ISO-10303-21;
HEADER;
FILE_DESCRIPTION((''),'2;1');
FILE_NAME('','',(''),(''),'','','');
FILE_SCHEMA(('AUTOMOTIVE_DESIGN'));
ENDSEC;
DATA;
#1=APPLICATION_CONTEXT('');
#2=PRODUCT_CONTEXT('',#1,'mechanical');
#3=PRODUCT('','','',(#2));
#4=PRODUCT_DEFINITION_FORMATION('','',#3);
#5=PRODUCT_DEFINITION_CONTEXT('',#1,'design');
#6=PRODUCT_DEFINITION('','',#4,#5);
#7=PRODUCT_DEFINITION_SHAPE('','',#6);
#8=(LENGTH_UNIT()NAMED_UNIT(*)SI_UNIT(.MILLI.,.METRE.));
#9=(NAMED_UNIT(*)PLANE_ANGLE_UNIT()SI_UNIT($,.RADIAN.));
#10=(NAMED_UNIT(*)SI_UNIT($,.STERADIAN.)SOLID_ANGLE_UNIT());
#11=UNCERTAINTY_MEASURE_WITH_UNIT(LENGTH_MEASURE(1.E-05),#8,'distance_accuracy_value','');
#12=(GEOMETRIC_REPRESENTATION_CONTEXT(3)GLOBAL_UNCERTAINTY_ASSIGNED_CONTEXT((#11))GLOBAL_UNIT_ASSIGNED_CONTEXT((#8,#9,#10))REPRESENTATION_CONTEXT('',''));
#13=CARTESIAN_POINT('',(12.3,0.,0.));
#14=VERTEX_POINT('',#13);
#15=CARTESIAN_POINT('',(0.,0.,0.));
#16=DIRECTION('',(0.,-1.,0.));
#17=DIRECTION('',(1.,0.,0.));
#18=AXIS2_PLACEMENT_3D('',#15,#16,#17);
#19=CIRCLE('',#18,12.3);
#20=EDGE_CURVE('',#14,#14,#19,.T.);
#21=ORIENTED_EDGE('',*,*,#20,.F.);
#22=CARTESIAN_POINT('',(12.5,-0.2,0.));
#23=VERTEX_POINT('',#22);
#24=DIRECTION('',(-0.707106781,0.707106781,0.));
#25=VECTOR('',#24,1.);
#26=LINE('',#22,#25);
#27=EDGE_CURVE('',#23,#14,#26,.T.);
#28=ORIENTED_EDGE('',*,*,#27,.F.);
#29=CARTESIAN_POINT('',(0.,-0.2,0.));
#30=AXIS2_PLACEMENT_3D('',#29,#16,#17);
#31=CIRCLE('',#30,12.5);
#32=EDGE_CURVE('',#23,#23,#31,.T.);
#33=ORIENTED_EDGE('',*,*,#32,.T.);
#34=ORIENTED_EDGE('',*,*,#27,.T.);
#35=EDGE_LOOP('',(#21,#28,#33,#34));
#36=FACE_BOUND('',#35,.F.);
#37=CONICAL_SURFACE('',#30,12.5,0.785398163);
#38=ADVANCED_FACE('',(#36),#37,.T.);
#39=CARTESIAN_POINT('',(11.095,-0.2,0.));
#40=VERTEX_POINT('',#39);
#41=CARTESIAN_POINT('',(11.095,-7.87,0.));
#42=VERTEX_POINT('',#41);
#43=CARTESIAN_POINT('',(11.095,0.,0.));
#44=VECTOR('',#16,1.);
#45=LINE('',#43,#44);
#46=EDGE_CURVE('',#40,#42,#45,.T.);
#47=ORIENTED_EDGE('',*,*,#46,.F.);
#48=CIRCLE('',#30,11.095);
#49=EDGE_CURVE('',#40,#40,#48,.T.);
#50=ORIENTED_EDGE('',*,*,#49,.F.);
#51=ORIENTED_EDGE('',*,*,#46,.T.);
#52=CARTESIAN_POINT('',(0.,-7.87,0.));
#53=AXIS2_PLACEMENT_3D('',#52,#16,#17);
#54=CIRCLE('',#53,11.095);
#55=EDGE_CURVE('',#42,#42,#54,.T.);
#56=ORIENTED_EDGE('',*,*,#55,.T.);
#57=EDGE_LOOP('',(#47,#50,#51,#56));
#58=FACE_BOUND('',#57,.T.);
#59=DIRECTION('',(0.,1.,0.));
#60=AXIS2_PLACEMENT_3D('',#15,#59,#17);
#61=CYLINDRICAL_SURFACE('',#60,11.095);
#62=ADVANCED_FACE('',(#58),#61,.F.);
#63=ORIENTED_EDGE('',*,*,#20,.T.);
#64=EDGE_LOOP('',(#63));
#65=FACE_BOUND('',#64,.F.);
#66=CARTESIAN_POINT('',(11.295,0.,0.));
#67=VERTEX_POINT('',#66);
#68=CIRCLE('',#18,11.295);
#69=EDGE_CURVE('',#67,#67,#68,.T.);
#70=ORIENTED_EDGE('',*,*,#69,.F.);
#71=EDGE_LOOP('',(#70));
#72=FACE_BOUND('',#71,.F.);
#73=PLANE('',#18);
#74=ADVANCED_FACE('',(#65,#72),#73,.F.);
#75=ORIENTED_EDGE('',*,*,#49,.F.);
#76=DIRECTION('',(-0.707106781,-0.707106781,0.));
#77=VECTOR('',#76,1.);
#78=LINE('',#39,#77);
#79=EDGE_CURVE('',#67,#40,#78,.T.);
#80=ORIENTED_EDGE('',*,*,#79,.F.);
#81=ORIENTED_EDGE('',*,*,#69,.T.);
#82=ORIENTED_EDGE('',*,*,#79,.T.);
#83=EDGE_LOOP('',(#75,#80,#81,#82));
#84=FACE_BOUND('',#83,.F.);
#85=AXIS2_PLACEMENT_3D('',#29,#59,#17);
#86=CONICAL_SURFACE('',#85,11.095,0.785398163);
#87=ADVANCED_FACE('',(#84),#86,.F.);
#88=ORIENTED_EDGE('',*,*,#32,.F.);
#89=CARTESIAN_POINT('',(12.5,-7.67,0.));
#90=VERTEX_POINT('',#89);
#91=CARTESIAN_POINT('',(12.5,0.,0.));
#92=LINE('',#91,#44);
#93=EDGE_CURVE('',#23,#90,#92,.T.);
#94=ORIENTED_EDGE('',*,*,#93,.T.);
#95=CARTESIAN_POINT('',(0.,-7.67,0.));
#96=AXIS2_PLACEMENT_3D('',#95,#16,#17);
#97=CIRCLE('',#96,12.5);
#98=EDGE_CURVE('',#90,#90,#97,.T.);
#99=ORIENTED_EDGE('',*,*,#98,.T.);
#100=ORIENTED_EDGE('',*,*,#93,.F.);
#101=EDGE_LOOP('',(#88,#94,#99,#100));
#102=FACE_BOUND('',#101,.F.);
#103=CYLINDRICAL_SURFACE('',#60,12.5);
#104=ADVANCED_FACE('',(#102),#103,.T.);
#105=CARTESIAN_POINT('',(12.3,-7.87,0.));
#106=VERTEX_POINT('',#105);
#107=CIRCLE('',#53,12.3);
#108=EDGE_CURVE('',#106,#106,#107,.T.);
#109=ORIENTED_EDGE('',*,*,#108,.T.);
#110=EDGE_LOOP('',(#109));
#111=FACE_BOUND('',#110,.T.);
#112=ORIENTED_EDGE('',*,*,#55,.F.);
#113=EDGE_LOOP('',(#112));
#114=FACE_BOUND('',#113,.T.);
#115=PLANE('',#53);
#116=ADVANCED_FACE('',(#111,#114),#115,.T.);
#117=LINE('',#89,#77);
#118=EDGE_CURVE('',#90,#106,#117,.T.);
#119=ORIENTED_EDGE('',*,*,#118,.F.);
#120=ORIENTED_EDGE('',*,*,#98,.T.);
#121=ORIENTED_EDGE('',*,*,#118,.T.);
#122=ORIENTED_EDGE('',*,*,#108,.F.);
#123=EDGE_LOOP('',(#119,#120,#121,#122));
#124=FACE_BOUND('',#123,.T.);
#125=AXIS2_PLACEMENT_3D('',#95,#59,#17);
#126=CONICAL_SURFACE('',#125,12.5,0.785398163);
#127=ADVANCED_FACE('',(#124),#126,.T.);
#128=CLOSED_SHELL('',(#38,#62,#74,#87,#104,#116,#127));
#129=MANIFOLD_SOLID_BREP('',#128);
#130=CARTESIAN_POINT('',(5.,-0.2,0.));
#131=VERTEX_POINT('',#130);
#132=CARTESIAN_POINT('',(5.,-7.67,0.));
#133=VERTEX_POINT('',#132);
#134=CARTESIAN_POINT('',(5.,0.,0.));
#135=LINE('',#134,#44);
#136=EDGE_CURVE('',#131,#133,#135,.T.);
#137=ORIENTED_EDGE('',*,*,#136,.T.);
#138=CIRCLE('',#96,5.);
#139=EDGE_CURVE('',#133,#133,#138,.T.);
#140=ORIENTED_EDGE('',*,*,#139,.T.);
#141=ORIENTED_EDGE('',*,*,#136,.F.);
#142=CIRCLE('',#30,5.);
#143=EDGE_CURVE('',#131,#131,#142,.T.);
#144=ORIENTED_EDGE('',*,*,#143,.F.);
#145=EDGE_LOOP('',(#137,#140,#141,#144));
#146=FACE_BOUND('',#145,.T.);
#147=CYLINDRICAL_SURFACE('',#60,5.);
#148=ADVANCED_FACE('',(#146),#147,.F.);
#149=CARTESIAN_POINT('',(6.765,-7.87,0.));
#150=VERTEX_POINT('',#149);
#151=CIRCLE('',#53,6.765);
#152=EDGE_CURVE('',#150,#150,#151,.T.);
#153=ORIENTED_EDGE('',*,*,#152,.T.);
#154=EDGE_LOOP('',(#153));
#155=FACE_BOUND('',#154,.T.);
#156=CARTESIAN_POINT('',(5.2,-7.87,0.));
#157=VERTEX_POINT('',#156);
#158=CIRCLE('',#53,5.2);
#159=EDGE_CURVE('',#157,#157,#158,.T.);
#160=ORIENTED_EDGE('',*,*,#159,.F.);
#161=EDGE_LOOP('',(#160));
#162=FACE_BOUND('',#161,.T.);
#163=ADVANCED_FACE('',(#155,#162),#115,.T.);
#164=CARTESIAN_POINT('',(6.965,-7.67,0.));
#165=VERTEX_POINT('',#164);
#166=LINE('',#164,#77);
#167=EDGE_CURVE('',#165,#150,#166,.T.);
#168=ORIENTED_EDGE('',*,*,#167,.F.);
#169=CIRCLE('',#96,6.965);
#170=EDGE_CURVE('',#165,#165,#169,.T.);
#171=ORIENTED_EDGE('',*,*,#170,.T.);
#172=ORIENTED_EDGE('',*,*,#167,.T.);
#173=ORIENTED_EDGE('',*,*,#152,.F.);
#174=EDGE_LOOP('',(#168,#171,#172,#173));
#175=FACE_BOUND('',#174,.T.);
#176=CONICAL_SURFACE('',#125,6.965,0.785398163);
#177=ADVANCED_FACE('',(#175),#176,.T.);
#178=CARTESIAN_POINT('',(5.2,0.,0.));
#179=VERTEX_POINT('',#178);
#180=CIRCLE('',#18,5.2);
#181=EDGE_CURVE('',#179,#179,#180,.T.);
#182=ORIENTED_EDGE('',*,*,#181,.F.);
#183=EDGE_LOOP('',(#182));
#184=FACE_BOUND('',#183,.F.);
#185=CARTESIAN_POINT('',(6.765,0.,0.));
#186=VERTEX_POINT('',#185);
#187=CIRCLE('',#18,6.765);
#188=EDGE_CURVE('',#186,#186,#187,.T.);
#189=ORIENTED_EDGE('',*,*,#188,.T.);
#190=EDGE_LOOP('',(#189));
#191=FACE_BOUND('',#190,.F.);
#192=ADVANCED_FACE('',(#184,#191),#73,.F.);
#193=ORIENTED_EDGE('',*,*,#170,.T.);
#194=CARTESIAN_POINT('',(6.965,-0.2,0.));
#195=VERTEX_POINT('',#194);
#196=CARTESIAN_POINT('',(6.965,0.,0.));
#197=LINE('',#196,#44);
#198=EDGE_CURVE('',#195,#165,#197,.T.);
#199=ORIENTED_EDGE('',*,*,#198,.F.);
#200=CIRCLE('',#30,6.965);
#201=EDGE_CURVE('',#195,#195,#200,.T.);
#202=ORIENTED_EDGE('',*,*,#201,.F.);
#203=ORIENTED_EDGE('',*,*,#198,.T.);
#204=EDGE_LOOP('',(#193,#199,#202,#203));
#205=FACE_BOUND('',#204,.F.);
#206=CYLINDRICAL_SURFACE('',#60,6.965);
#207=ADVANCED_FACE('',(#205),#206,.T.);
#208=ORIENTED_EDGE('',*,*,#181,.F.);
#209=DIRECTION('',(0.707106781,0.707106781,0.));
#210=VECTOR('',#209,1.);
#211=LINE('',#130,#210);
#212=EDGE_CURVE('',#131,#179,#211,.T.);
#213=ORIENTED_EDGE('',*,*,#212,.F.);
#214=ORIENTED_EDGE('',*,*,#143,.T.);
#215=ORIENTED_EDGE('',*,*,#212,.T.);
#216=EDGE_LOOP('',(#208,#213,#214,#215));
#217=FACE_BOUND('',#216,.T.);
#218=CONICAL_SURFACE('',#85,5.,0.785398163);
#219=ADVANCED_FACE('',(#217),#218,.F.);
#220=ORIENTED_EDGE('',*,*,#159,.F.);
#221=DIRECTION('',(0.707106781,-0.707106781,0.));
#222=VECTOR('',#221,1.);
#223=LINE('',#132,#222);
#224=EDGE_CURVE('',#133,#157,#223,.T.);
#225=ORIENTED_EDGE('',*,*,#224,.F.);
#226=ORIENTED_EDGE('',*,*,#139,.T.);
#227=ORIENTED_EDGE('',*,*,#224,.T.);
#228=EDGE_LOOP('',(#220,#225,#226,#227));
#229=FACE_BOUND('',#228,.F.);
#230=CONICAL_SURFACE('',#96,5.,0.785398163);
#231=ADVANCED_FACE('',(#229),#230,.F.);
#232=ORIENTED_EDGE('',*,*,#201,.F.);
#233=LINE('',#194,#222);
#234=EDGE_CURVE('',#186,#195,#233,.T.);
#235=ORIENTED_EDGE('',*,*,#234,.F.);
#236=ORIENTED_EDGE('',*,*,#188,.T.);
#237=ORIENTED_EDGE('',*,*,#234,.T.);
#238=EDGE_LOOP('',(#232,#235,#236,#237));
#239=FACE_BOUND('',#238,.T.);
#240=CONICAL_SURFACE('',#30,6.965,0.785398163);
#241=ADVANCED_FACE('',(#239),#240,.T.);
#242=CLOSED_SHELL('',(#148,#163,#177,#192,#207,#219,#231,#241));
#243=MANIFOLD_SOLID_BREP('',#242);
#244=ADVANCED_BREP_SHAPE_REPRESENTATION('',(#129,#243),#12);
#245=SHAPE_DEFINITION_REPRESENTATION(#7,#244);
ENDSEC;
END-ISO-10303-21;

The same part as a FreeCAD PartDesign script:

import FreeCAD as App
import Part
import Sketcher


def edges_at(feature, points):
    """Names of the edges that pass closest to the given points."""
    edges = feature.Shape.Edges
    near = lambda p: min(range(len(edges)), key=lambda i: edges[i].distToShape(Part.Vertex(*p))[0])
    return sorted({f"Edge{near(p) + 1}" for p in points})

doc = App.newDocument("Part")
body = doc.addObject("PartDesign::Body", "Body")
body.AllowCompound = True

# Sketch on XZ plane
sketch1 = body.newObject("Sketcher::SketchObject", "Sketch")
sketch1.AttachmentSupport = (doc.getObject("XZ_Plane"), [""])
sketch1.MapMode = "FlatFace"
sketch1.addGeometry([
    Part.Circle(App.Vector(0, 0, 0), App.Vector(0, 0, 1), 12.5),
    Part.Circle(App.Vector(0, 0, 0), App.Vector(0, 0, 1), 11.095),
    Part.Circle(App.Vector(0, 0, 0), App.Vector(0, 0, 1), 6.965),
    Part.Circle(App.Vector(0, 0, 0), App.Vector(0, 0, 1), 5),
], False)
sketch1.addConstraint([
    Sketcher.Constraint("Coincident", 0, 3, -1, 1),
    Sketcher.Constraint("Coincident", 1, 3, -1, 1),
    Sketcher.Constraint("Coincident", 2, 3, -1, 1),
    Sketcher.Constraint("Coincident", 3, 3, -1, 1),
    Sketcher.Constraint("Diameter", 0, 25.0),
    Sketcher.Constraint("Diameter", 3, 10.0),
    Sketcher.Constraint("Diameter", 1, 22.19),
    Sketcher.Constraint("Diameter", 2, 13.93),
])
pad1 = body.newObject("PartDesign::Pad", "Pad")
pad1.Profile = sketch1
pad1.Length = 7.87
doc.recompute()

chamfer = body.newObject("PartDesign::Chamfer", "Chamfer")
chamfer.Base = (pad1, edges_at(pad1, [(-5, -7.87, 0)]))
chamfer.Size = 0.2
doc.recompute()

chamfer2 = body.newObject("PartDesign::Chamfer", "Chamfer001")
chamfer2.Base = (chamfer, edges_at(chamfer, [(-5, 0, 0)]))
chamfer2.Size = 0.2
doc.recompute()

chamfer3 = body.newObject("PartDesign::Chamfer", "Chamfer002")
chamfer3.Base = (chamfer2, edges_at(chamfer2, [(-12.5, -7.87, 0), (-12.5, 0, 0)]))
chamfer3.Size = 0.2
doc.recompute()

chamfer4 = body.newObject("PartDesign::Chamfer", "Chamfer003")
chamfer4.Base = (chamfer3, edges_at(chamfer3, [(-11.095, 0, 0), (-6.965, 0, 0)]))
chamfer4.Size = 0.2
doc.recompute()

chamfer5 = body.newObject("PartDesign::Chamfer", "Chamfer004")
chamfer5.Base = (chamfer4, edges_at(chamfer4, [(-6.965, -7.87, 0)]))
chamfer5.Size = 0.2

doc.recompute()
